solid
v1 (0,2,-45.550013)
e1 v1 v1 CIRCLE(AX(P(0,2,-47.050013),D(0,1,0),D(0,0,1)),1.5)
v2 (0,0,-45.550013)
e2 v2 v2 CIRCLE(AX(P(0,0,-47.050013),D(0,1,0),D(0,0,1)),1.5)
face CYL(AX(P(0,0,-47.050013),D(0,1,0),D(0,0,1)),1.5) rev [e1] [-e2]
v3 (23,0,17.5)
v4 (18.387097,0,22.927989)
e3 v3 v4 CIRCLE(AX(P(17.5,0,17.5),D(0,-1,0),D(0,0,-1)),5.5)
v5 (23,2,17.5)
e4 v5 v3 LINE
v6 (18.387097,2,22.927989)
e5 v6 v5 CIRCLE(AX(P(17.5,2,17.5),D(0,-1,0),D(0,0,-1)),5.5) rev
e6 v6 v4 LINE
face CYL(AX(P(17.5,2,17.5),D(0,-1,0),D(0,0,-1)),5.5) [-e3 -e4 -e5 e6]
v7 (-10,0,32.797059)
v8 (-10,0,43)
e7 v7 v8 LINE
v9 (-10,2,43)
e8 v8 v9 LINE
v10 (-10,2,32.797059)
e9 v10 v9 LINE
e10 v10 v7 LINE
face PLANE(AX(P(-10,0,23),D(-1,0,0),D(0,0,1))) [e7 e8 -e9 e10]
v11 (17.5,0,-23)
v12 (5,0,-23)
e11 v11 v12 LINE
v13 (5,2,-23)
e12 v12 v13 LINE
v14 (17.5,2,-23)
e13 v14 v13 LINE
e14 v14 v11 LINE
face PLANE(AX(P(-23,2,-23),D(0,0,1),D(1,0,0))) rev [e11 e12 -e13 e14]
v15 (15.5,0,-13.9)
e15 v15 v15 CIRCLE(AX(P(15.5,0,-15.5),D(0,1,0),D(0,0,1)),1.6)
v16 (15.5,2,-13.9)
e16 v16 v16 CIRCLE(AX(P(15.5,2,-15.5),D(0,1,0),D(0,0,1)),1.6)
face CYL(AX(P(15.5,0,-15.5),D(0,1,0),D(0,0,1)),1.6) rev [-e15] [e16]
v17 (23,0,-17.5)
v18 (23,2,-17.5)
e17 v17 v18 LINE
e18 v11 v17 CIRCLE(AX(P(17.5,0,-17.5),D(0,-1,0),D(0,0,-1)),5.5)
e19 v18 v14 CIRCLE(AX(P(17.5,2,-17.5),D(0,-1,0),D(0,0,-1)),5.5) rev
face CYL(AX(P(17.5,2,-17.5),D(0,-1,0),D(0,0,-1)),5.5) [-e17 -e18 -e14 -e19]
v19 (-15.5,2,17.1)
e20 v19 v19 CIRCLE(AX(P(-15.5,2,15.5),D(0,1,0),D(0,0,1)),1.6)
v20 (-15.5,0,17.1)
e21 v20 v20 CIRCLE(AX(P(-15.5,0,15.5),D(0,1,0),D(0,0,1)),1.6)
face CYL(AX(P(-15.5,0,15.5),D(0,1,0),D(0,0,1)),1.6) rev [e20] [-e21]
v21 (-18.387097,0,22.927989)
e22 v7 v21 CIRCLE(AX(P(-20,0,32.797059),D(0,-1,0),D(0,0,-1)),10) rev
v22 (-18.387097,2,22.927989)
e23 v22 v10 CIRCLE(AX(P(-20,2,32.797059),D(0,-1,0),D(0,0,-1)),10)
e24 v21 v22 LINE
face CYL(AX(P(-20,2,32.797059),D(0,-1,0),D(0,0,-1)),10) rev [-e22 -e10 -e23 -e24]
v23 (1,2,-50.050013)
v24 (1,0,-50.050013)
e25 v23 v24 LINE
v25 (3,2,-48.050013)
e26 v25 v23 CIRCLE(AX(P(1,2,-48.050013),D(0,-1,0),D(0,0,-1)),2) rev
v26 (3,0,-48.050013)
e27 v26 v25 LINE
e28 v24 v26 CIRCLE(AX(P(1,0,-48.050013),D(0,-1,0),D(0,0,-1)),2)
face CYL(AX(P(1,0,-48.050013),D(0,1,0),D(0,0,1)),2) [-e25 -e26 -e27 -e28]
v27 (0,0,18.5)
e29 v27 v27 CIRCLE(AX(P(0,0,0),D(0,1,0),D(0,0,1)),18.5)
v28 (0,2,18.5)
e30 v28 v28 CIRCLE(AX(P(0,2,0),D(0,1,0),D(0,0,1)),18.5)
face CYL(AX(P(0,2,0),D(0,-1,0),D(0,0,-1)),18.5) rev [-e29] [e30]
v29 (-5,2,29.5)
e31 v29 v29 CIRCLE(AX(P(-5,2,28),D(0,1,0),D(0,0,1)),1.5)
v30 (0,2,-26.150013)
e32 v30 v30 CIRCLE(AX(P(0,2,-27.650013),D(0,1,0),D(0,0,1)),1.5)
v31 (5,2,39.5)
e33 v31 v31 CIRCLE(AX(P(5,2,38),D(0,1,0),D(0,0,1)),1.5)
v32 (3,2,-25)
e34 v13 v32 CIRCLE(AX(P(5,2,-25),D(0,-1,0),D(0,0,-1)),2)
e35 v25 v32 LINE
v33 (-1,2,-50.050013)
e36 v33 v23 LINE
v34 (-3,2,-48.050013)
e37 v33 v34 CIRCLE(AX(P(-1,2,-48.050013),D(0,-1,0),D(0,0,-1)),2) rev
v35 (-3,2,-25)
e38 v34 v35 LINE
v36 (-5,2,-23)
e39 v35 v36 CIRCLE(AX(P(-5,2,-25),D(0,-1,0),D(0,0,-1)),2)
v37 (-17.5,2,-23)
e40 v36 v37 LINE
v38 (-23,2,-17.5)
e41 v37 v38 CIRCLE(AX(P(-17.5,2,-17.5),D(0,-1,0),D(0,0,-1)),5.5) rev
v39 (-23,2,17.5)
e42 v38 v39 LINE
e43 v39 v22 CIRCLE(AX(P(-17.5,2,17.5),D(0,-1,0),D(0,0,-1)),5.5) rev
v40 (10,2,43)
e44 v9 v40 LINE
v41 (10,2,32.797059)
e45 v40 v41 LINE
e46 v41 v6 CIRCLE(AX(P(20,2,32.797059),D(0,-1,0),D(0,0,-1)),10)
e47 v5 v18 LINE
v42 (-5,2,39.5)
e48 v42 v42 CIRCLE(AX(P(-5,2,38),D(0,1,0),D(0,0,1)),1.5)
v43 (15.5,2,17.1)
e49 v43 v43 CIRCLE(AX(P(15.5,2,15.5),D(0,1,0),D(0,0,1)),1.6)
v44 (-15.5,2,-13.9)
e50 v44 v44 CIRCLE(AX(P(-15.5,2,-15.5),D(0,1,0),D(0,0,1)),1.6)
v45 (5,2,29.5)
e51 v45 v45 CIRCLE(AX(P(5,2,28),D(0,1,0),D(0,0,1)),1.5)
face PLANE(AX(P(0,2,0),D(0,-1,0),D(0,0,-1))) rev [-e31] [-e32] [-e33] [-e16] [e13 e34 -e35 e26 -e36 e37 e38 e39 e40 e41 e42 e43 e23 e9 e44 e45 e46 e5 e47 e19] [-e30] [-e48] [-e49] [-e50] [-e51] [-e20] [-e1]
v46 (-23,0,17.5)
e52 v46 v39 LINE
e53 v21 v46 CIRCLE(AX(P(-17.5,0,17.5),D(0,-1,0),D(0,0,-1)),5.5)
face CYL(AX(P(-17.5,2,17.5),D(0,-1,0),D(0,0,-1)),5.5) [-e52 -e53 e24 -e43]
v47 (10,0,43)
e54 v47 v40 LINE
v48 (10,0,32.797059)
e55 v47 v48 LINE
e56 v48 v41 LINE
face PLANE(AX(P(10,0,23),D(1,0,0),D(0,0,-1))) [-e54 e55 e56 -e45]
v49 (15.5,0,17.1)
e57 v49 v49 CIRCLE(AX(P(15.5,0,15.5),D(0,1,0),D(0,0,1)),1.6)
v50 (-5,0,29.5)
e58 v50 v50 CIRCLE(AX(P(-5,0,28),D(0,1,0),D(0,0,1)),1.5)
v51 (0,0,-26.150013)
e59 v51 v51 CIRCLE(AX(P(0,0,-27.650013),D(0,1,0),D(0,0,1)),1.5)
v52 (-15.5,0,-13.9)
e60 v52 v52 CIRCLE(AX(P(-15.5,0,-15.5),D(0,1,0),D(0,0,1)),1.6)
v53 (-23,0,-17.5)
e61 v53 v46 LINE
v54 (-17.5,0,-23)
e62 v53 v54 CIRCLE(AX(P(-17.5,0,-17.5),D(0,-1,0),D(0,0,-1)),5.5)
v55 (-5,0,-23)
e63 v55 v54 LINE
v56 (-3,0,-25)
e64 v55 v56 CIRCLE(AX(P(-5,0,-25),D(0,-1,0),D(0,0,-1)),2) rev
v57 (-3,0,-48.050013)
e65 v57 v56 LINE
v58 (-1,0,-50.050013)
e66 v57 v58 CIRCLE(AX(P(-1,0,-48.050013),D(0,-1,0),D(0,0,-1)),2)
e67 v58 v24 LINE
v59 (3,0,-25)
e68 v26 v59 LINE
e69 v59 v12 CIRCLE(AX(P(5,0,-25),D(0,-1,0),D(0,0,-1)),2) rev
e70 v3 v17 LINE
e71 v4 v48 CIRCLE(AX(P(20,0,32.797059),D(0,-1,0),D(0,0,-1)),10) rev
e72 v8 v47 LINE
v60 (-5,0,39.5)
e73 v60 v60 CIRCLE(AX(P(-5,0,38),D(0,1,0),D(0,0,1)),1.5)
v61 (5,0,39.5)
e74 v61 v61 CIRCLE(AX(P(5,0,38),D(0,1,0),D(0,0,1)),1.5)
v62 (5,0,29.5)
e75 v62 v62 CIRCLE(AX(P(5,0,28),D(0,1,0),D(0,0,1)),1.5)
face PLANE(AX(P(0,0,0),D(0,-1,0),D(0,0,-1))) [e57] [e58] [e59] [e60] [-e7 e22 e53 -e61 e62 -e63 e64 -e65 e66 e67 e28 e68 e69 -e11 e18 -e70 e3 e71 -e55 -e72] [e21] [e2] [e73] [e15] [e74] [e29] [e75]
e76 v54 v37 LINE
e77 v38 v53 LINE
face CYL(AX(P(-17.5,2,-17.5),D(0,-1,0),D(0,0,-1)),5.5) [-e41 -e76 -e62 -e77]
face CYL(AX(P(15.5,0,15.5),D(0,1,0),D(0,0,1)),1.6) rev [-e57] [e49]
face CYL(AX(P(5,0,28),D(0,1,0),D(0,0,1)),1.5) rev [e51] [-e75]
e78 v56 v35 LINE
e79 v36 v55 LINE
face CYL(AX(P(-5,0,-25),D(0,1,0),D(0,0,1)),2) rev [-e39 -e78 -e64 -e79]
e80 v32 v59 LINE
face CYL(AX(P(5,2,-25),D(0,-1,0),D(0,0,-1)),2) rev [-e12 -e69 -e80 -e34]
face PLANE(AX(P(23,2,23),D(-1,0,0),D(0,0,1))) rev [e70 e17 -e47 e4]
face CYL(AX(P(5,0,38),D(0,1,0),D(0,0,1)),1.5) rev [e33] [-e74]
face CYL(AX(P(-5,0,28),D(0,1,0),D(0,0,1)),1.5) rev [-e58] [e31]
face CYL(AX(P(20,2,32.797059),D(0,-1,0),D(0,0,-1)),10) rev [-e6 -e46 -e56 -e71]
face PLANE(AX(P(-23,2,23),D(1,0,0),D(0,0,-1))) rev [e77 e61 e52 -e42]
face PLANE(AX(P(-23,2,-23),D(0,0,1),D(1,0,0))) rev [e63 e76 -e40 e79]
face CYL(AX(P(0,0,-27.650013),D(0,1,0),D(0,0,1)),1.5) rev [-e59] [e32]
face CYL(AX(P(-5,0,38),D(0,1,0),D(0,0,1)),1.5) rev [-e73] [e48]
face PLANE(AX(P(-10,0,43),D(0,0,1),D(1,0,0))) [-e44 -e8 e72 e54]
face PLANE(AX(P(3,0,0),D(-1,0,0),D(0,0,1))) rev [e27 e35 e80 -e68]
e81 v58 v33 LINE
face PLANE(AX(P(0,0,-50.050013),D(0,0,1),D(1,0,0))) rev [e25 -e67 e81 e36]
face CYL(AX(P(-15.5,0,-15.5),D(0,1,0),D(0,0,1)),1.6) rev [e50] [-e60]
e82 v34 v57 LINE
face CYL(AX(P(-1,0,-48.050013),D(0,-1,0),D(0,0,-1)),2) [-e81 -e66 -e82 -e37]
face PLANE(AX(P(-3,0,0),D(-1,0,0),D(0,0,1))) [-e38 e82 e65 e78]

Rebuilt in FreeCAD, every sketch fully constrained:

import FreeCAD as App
import Part
import Sketcher

V = App.Vector
Q = App.Units.Quantity


def edges_at(feature, points):
    """Names of the edges that pass closest to the given points."""
    edges = feature.Shape.Edges
    near = lambda p: min(range(len(edges)), key=lambda i: edges[i].distToShape(Part.Vertex(*p))[0])
    return sorted({f"Edge{near(p) + 1}" for p in points})


def add_polygon(sketch, points):
    """Adds a closed chain of lines whose ends are joined by coincident constraints."""
    first, n = sketch.GeometryCount, len(points)
    for a, b in zip(points, points[1:] + points[:1]):
        sketch.addGeometry(Part.LineSegment(App.Vector(*a, 0), App.Vector(*b, 0)), False)
    for i in range(n):
        sketch.addConstraint(Sketcher.Constraint("Coincident", first + i, 2, first + (i + 1) % n, 1))

doc = App.newDocument("Part")
body = doc.addObject("PartDesign::Body", "Body")

# Sketch on XZ plane
sketch1 = doc.addObject("Sketcher::SketchObject", "Sketch")
body.addObject(sketch1)
sketch1.AttachmentSupport = (doc.XZ_Plane, [""])
sketch1.MapMode = "FlatFace"
add_polygon(sketch1, [(-23, -23), (-23, 23), (23, 23), (23, -23)])  # lines 0-3
sketch1.addGeometry(Part.Circle(V(0, 0, 0), V(0, 0, 1), 18), False)  # 4
sketch1.addConstraint([
    Sketcher.Constraint("Vertical", 0),
    Sketcher.Constraint("Horizontal", 1),
    Sketcher.Constraint("Vertical", 2),
    Sketcher.Constraint("Horizontal", 3),
    Sketcher.Constraint("Coincident", 4, 3, -1, 1),
    Sketcher.Constraint("Symmetric", 0, 2, 2, 2, -1, 1),
    Sketcher.Constraint("Equal", 3, 0),
    Sketcher.Constraint("Diameter", 4, Q("37 mm")),
    Sketcher.Constraint("DistanceX", 1, 1, 1, 2, Q("46 mm")),
])
pad1 = doc.addObject("PartDesign::Pad", "Pad")
body.addObject(pad1)
pad1.Profile = sketch1
pad1.Length = 2
pad1.Reversed = True
doc.recompute()

fillet = doc.addObject("PartDesign::Fillet", "Fillet")
body.addObject(fillet)
fillet.Base = (pad1, edges_at(pad1, [
    (23, 1, 23),
    (-23, 1, 23),
    (-23, 1, -23),
    (23, 1, -23),
]))
fillet.Radius = 5.5

# Sketch on XZ plane
sketch2 = doc.addObject("Sketcher::SketchObject", "Sketch001")
body.addObject(sketch2)
sketch2.AttachmentSupport = (doc.XZ_Plane, [""])
sketch2.MapMode = "FlatFace"
sketch2.AttachmentOffset = App.Placement(V(0, 0, -2), App.Rotation())
sketch2.addGeometry([
    Part.Circle(V(-15.5, -15.5, 0), V(0, 0, 1), 1.6),
    Part.Circle(V(15.5, -15.5, 0), V(0, 0, 1), 1.6),
    Part.Circle(V(-15.5, 15.5, 0), V(0, 0, 1), 1.6),
    Part.Circle(V(15.5, 15.5, 0), V(0, 0, 1), 1.6),
], False)
sketch2.addConstraint([
    Sketcher.Constraint("Equal", 0, 1),
    Sketcher.Constraint("Equal", 1, 2),
    Sketcher.Constraint("Equal", 2, 3),
    Sketcher.Constraint("Symmetric", 1, 3, 2, 3, -1, 1),
    Sketcher.Constraint("Symmetric", 0, 3, 3, 3, -1, 1),
    Sketcher.Constraint("Symmetric", 0, 3, 1, 3, -2),
    Sketcher.Constraint("Diameter", 0, Q("3.2 mm")),
    Sketcher.Constraint("DistanceX", 0, 3, 1, 3, Q("31 mm")),
    Sketcher.Constraint("DistanceY", 0, 3, 2, 3, Q("31 mm")),
])
pocket1 = doc.addObject("PartDesign::Pocket", "Pocket")
body.addObject(pocket1)
pocket1.Profile = sketch2
pocket1.Type = "ThroughAll"
pocket1.Reversed = True

# Sketch on XZ plane
sketch3 = doc.addObject("Sketcher::SketchObject", "Sketch002")
body.addObject(sketch3)
sketch3.AttachmentSupport = (doc.XZ_Plane, [""])
sketch3.MapMode = "FlatFace"
sketch3.AttachmentOffset = App.Placement(V(0, 0, -2), App.Rotation())
add_polygon(sketch3, [(-10, 23), (-10, 43), (10, 43), (10, 23)])  # lines 0-3
sketch3.addGeometry(Part.Circle(V(-5, 38, 0), V(0, 0, 1), 1.5), False)  # 4
sketch3.addGeometry(Part.Circle(V(5, 38, 0), V(0, 0, 1), 1.5), False)  # 5
sketch3.addGeometry(Part.Circle(V(-5, 28, 0), V(0, 0, 1), 1.5), False)  # 6
sketch3.addGeometry(Part.Circle(V(5, 28, 0), V(0, 0, 1), 1.5), False)  # 7
sketch3.addConstraint([
    Sketcher.Constraint("Vertical", 0),
    Sketcher.Constraint("Horizontal", 1),
    Sketcher.Constraint("Vertical", 2),
    Sketcher.Constraint("Horizontal", 3),
    Sketcher.Constraint("Equal", 4, 5),
    Sketcher.Constraint("Equal", 5, 6),
    Sketcher.Constraint("Equal", 6, 7),
    Sketcher.Constraint("Symmetric", 4, 3, 5, 3, -2),
    Sketcher.Constraint("Symmetric", 6, 3, 7, 3, -2),
    Sketcher.Constraint("Vertical", 4, 3, 6, 3),
    Sketcher.Constraint("Equal", 3, 0),
    Sketcher.Constraint("Diameter", 4, Q("3 mm")),
    Sketcher.Constraint("DistanceX", 1, 1, 1, 2, Q("20 mm")),
    Sketcher.Constraint("DistanceX", 4, 3, -1, 1, Q("5 mm")),
    Sketcher.Constraint("DistanceY", -1, 1, 4, 3, Q("38 mm")),
    Sketcher.Constraint("DistanceY", -1, 1, 6, 3, Q("28 mm")),
    Sketcher.Constraint("DistanceX", 0, 2, -1, 1, Q("10 mm")),
    Sketcher.Constraint("DistanceY", -1, 1, 0, 2, Q("43 mm")),
])
pad2 = doc.addObject("PartDesign::Pad", "Pad001")
body.addObject(pad2)
pad2.Profile = sketch3
pad2.Length = 2

# Sketch on XZ plane
sketch4 = doc.addObject("Sketcher::SketchObject", "Sketch003")
body.addObject(sketch4)
sketch4.AttachmentSupport = (doc.XZ_Plane, [""])
sketch4.MapMode = "FlatFace"
sketch4.AttachmentOffset = App.Placement(V(0, 0, -2), App.Rotation())
add_polygon(sketch4, [(-3, -50.1), (-3, -22.7), (3, -22.7), (3, -50.1)])  # lines 0-3
sketch4.addGeometry(Part.Circle(V(0, -27.7, 0), V(0, 0, 1), 1.5), False)  # 4
sketch4.addGeometry(Part.Circle(V(0, -47.1, 0), V(0, 0, 1), 1.5), False)  # 5
sketch4.addConstraint([
    Sketcher.Constraint("Vertical", 0),
    Sketcher.Constraint("Horizontal", 1),
    Sketcher.Constraint("Vertical", 2),
    Sketcher.Constraint("Horizontal", 3),
    Sketcher.Constraint("Equal", 4, 5),
    Sketcher.Constraint("PointOnObject", 4, 3, -2),
    Sketcher.Constraint("PointOnObject", 5, 3, -2),
    Sketcher.Constraint("Diameter", 4, Q("3 mm")),
    Sketcher.Constraint("DistanceX", 1, 1, 1, 2, Q("6 mm")),
    Sketcher.Constraint("DistanceY", 0, 1, 0, 2, Q("27.4 mm")),
    Sketcher.Constraint("DistanceX", 0, 2, -1, 1, Q("3 mm")),
    Sketcher.Constraint("DistanceY", 4, 3, 0, 2, Q("5 mm")),
    Sketcher.Constraint("DistanceY", 2, 2, 5, 3, Q("3 mm")),
    Sketcher.Constraint("DistanceY", 4, 3, -1, 1, Q("27.650013 mm")),
])
pad3 = doc.addObject("PartDesign::Pad", "Pad002")
body.addObject(pad3)
pad3.Profile = sketch4
pad3.Length = 2
doc.recompute()

fillet2 = doc.addObject("PartDesign::Fillet", "Fillet001")
body.addObject(fillet2)
fillet2.Base = (pad3, edges_at(pad3, [
    (-3, 1, -50.05),
    (3, 1, -50.05),
    (3, 1, -23),
    (-3, 1, -23),
]))
fillet2.Radius = 2
doc.recompute()

fillet3 = doc.addObject("PartDesign::Fillet", "Fillet002")
body.addObject(fillet3)
fillet3.Base = (fillet2, edges_at(fillet2, [(10, 1, 23), (-10, 1, 23)]))
fillet3.Radius = 10

doc.recompute()
